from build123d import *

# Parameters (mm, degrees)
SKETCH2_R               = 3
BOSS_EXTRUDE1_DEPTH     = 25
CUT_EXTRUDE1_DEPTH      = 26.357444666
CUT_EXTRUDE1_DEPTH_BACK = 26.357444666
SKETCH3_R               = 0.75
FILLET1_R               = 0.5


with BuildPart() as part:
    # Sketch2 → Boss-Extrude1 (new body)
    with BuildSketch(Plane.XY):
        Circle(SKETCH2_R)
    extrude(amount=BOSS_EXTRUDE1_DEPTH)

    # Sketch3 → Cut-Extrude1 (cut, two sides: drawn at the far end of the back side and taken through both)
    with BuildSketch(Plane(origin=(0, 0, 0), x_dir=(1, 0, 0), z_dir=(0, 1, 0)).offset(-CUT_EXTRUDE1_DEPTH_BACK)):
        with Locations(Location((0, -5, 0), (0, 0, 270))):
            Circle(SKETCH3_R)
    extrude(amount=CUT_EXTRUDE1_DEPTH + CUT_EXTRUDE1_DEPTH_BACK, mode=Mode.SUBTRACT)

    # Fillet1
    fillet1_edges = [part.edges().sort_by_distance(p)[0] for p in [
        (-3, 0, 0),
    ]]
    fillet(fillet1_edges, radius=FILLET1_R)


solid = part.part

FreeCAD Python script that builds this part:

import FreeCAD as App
import Part
import Sketcher
Q = App.Units.Quantity


def edges_at(feature, points):
    """Names of the edges that pass closest to the given points."""
    edges = feature.Shape.Edges
    near = lambda p: min(range(len(edges)), key=lambda i: edges[i].distToShape(Part.Vertex(*p))[0])
    return sorted({f"Edge{near(p) + 1}" for p in points})

doc = App.newDocument("Part")
body = doc.addObject("PartDesign::Body", "Body")

# Sketch on XY plane
sketch1 = body.newObject("Sketcher::SketchObject", "Sketch")
sketch1.AttachmentSupport = (doc.getObject("XY_Plane"), [""])
sketch1.MapMode = "FlatFace"
sketch1.addGeometry(Part.Circle(App.Vector(0, 0, 0), App.Vector(0, 0, 1), 3), False)
sketch1.addConstraint([
    Sketcher.Constraint("Coincident", 0, 3, -1, 1),
    Sketcher.Constraint("Diameter", 0, Q("6 mm")),
])
pad1 = body.newObject("PartDesign::Pad", "Pad")
pad1.Profile = sketch1
pad1.Length = 25

# Sketch on XZ plane
sketch2 = body.newObject("Sketcher::SketchObject", "Sketch001")
sketch2.AttachmentSupport = (doc.getObject("XZ_Plane"), [""])
sketch2.MapMode = "FlatFace"
sketch2.addGeometry(Part.Circle(App.Vector(0, 5, 0), App.Vector(0, 0, 1), 0.8), False)
sketch2.addConstraint([
    Sketcher.Constraint("PointOnObject", 0, 3, -2),
    Sketcher.Constraint("Diameter", 0, Q("1.5 mm")),
    Sketcher.Constraint("DistanceY", -1, 1, 0, 3, Q("5 mm")),
])
pocket1 = body.newObject("PartDesign::Pocket", "Pocket")
pocket1.Profile = sketch2
pocket1.Type = "ThroughAll"
pocket1.Midplane = True
doc.recompute()

fillet = body.newObject("PartDesign::Fillet", "Fillet")
fillet.Base = (pocket1, edges_at(pocket1, [(-3, 0, 0)]))
fillet.Radius = 0.5

doc.recompute()
